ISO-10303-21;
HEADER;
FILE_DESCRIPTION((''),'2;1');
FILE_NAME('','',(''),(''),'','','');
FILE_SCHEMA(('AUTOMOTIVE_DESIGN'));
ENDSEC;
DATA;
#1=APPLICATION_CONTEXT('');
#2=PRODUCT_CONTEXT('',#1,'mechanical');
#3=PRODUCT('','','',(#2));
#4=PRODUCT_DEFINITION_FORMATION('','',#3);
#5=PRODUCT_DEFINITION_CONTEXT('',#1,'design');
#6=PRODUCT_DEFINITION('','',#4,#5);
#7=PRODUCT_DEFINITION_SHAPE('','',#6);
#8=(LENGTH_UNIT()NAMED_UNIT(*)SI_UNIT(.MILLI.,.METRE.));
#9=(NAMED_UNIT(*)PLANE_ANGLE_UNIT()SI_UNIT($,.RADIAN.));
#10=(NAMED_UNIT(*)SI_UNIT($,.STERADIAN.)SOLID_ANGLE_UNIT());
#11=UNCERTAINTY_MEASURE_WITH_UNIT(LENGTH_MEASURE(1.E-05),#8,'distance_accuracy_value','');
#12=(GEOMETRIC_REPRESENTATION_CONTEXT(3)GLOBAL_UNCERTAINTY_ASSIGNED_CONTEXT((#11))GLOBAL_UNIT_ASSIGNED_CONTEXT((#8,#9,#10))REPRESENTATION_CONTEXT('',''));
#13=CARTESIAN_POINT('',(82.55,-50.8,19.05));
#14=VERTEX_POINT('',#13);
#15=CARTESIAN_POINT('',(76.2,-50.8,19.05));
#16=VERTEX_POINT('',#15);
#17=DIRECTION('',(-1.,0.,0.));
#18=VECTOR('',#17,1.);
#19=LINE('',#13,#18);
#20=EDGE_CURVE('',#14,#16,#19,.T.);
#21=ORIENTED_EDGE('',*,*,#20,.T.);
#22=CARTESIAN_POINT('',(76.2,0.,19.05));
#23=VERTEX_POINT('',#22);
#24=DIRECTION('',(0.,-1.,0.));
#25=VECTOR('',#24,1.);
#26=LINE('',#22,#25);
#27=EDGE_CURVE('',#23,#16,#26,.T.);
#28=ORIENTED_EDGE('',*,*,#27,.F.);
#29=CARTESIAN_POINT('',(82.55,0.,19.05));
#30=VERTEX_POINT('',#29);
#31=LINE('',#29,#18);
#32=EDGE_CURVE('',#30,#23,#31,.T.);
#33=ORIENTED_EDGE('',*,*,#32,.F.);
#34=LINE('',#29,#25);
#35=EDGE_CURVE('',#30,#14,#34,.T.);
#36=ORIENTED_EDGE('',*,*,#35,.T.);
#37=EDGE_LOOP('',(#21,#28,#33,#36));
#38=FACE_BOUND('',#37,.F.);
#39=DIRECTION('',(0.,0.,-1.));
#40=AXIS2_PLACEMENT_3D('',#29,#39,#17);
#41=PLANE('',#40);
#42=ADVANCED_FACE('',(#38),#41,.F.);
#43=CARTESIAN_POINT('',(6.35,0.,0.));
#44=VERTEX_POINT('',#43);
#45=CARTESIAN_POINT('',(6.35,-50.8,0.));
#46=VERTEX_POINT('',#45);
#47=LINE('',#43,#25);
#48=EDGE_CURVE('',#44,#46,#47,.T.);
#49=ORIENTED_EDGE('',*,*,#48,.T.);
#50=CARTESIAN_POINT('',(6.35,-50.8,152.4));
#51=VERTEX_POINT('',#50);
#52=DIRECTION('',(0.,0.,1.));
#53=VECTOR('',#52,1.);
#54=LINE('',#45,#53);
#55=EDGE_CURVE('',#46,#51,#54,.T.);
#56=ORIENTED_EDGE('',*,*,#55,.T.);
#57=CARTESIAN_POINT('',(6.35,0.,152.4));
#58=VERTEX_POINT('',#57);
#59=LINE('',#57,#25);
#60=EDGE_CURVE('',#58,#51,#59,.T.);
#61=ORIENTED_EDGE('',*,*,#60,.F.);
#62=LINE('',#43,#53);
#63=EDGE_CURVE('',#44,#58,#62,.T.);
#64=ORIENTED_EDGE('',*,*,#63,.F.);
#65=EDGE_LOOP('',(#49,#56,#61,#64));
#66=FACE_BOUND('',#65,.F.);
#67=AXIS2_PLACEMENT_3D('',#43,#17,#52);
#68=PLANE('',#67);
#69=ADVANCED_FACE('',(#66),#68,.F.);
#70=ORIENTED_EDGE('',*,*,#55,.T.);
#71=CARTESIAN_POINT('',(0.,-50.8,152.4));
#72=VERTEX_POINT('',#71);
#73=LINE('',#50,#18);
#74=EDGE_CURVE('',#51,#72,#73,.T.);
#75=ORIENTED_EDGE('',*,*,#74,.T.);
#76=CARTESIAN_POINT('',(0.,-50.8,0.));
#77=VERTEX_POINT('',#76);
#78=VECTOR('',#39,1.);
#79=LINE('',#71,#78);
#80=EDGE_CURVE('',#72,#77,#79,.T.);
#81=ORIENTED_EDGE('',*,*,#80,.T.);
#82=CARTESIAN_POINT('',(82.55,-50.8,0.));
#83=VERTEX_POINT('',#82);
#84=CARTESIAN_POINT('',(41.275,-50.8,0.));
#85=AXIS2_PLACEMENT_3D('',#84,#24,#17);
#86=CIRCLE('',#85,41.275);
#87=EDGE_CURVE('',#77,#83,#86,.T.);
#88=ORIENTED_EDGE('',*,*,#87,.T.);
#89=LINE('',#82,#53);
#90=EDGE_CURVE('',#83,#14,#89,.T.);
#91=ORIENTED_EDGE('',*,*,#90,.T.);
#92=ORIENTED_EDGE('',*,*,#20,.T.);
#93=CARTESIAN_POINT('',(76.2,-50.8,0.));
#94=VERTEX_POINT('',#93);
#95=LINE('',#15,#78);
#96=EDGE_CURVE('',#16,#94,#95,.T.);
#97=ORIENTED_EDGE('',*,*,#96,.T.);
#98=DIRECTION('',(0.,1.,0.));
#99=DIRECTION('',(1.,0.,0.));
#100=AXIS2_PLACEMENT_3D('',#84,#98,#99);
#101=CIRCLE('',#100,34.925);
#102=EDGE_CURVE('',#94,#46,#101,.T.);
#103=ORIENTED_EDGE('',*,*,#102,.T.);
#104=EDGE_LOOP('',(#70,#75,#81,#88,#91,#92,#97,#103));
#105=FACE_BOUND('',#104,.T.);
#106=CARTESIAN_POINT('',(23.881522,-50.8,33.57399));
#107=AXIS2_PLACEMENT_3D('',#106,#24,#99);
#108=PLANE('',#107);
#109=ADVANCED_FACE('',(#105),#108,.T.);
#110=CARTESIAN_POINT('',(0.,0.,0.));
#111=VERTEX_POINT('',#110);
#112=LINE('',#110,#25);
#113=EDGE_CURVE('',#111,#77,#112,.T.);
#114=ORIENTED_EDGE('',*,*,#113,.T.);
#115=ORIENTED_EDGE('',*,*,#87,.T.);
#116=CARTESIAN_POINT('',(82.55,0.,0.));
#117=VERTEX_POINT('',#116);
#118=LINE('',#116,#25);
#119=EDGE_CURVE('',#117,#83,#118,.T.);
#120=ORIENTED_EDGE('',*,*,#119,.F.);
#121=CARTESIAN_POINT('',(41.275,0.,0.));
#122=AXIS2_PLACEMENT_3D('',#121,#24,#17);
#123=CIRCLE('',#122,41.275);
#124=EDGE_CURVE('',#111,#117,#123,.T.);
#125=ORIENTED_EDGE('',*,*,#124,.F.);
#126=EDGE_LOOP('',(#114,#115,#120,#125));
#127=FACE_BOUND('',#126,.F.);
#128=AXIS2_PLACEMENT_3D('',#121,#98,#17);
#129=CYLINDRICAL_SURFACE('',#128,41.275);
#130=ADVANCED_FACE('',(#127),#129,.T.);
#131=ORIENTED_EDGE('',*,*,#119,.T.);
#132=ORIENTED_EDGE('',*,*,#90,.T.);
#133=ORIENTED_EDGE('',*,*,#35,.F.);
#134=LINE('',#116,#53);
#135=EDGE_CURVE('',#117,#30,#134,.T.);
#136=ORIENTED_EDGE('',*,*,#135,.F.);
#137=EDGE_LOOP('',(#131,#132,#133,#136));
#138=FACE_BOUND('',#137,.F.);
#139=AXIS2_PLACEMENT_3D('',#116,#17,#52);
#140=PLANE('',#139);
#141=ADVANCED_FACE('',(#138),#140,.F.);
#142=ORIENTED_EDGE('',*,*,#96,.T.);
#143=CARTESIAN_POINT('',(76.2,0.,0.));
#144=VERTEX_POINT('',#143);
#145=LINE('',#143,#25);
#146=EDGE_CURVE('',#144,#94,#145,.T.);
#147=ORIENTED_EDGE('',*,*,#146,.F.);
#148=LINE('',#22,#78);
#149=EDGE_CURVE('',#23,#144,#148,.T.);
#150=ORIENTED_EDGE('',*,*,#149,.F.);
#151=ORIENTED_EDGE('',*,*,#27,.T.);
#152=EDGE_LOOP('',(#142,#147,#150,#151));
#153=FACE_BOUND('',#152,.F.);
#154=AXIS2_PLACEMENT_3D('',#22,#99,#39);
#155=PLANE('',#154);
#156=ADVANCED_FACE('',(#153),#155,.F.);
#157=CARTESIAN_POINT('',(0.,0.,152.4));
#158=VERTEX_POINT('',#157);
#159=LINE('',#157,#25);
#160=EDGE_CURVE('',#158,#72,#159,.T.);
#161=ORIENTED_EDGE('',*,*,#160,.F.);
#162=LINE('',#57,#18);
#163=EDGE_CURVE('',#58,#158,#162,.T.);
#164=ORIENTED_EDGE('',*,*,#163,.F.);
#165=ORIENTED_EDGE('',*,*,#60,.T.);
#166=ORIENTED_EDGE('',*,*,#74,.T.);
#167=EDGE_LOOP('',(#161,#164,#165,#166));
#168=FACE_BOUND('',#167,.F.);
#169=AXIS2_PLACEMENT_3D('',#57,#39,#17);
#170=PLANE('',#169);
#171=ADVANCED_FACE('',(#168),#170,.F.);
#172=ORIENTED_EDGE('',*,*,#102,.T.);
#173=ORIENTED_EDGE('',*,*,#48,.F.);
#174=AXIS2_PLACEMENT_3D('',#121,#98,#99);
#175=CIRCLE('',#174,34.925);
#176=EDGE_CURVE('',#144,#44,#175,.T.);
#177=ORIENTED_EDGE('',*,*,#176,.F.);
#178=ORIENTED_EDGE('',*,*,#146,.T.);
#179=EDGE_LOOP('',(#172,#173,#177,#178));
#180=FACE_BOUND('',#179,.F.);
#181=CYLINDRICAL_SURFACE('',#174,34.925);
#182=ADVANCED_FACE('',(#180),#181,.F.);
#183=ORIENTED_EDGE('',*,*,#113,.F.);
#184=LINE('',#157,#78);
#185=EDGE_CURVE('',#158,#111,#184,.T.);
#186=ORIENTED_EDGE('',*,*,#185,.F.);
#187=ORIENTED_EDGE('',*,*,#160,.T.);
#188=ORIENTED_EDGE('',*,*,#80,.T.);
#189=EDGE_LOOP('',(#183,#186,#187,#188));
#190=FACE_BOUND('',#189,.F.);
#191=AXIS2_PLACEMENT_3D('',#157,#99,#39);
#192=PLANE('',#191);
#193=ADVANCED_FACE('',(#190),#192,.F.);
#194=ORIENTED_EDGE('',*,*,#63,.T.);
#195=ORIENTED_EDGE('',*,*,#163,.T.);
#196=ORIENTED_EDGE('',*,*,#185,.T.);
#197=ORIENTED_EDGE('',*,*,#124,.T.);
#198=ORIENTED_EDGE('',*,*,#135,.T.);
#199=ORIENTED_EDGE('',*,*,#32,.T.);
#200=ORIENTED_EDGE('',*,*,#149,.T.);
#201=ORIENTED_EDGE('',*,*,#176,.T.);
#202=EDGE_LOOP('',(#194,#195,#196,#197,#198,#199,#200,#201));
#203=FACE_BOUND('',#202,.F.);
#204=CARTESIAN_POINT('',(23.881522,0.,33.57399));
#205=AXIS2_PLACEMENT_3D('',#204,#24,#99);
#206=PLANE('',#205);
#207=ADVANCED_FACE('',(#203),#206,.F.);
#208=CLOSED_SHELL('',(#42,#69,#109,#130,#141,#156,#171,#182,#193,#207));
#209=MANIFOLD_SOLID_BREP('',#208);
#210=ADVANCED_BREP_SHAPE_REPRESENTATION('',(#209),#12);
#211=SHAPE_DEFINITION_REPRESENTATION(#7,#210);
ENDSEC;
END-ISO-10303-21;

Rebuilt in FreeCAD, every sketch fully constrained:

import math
import FreeCAD as App
import Part
import Sketcher
Q = App.Units.Quantity

doc = App.newDocument("Part")
body = doc.addObject("PartDesign::Body", "Body")

sketch1 = doc.addObject("Sketcher::SketchObject", "Sketch")
body.addObject(sketch1)
sketch1.AttachmentSupport = (doc.XZ_Plane, [""])
sketch1.MapMode = "FlatFace"
sketch1.addGeometry([
    Part.LineSegment(App.Vector(0, 152, 0), App.Vector(0, 0, 0)),
    Part.ArcOfCircle(Part.Circle(App.Vector(41, 0, 0), App.Vector(0, 0, 1), 41), math.radians(180), math.radians(360)),
    Part.LineSegment(App.Vector(83, 0, 0), App.Vector(83, 19, 0)),
    Part.LineSegment(App.Vector(83, 19, 0), App.Vector(76, 19, 0)),
    Part.LineSegment(App.Vector(76, 19, 0), App.Vector(76, 0, 0)),
    Part.ArcOfCircle(Part.Circle(App.Vector(41, 0, 0), App.Vector(0, 0, 1), 35), math.radians(180), math.radians(360)),
    Part.LineSegment(App.Vector(6, 0, 0), App.Vector(6, 152, 0)),
    Part.LineSegment(App.Vector(6, 152, 0), App.Vector(0, 152, 0)),
], False)
sketch1.addConstraint([
    Sketcher.Constraint("Tangent", 0, 2, 1, 1),
    Sketcher.Constraint("Tangent", 1, 2, 2, 1),
    Sketcher.Constraint("Coincident", 2, 2, 3, 1),
    Sketcher.Constraint("Coincident", 3, 2, 4, 1),
    Sketcher.Constraint("Tangent", 4, 2, 5, 2),
    Sketcher.Constraint("Tangent", 5, 1, 6, 1),
    Sketcher.Constraint("Coincident", 6, 2, 7, 1),
    Sketcher.Constraint("Coincident", 7, 2, 0, 1),
    Sketcher.Constraint("Vertical", 0),
    Sketcher.Constraint("Vertical", 2),
    Sketcher.Constraint("Horizontal", 3),
    Sketcher.Constraint("Vertical", 4),
    Sketcher.Constraint("Vertical", 6),
    Sketcher.Constraint("Horizontal", 7),
    Sketcher.Constraint("Coincident", 0, 2, -1, 1),
    Sketcher.Constraint("Coincident", 5, 3, 1, 3),
    Sketcher.Constraint("DistanceY", 0, 2, 0, 1, Q("6 in")),
    Sketcher.Constraint("DistanceX", -1, 1, 3, 2, Q("3 in")),
    Sketcher.Constraint("Radius", 1, Q("1.625 in")),
    Sketcher.Constraint("DistanceY", 2, 1, 2, 2, Q("0.75 in")),
])
pad1 = doc.addObject("PartDesign::Pad", "Pad")
body.addObject(pad1)
pad1.Profile = sketch1
pad1.Length = Q("2 in")

doc.recompute()
